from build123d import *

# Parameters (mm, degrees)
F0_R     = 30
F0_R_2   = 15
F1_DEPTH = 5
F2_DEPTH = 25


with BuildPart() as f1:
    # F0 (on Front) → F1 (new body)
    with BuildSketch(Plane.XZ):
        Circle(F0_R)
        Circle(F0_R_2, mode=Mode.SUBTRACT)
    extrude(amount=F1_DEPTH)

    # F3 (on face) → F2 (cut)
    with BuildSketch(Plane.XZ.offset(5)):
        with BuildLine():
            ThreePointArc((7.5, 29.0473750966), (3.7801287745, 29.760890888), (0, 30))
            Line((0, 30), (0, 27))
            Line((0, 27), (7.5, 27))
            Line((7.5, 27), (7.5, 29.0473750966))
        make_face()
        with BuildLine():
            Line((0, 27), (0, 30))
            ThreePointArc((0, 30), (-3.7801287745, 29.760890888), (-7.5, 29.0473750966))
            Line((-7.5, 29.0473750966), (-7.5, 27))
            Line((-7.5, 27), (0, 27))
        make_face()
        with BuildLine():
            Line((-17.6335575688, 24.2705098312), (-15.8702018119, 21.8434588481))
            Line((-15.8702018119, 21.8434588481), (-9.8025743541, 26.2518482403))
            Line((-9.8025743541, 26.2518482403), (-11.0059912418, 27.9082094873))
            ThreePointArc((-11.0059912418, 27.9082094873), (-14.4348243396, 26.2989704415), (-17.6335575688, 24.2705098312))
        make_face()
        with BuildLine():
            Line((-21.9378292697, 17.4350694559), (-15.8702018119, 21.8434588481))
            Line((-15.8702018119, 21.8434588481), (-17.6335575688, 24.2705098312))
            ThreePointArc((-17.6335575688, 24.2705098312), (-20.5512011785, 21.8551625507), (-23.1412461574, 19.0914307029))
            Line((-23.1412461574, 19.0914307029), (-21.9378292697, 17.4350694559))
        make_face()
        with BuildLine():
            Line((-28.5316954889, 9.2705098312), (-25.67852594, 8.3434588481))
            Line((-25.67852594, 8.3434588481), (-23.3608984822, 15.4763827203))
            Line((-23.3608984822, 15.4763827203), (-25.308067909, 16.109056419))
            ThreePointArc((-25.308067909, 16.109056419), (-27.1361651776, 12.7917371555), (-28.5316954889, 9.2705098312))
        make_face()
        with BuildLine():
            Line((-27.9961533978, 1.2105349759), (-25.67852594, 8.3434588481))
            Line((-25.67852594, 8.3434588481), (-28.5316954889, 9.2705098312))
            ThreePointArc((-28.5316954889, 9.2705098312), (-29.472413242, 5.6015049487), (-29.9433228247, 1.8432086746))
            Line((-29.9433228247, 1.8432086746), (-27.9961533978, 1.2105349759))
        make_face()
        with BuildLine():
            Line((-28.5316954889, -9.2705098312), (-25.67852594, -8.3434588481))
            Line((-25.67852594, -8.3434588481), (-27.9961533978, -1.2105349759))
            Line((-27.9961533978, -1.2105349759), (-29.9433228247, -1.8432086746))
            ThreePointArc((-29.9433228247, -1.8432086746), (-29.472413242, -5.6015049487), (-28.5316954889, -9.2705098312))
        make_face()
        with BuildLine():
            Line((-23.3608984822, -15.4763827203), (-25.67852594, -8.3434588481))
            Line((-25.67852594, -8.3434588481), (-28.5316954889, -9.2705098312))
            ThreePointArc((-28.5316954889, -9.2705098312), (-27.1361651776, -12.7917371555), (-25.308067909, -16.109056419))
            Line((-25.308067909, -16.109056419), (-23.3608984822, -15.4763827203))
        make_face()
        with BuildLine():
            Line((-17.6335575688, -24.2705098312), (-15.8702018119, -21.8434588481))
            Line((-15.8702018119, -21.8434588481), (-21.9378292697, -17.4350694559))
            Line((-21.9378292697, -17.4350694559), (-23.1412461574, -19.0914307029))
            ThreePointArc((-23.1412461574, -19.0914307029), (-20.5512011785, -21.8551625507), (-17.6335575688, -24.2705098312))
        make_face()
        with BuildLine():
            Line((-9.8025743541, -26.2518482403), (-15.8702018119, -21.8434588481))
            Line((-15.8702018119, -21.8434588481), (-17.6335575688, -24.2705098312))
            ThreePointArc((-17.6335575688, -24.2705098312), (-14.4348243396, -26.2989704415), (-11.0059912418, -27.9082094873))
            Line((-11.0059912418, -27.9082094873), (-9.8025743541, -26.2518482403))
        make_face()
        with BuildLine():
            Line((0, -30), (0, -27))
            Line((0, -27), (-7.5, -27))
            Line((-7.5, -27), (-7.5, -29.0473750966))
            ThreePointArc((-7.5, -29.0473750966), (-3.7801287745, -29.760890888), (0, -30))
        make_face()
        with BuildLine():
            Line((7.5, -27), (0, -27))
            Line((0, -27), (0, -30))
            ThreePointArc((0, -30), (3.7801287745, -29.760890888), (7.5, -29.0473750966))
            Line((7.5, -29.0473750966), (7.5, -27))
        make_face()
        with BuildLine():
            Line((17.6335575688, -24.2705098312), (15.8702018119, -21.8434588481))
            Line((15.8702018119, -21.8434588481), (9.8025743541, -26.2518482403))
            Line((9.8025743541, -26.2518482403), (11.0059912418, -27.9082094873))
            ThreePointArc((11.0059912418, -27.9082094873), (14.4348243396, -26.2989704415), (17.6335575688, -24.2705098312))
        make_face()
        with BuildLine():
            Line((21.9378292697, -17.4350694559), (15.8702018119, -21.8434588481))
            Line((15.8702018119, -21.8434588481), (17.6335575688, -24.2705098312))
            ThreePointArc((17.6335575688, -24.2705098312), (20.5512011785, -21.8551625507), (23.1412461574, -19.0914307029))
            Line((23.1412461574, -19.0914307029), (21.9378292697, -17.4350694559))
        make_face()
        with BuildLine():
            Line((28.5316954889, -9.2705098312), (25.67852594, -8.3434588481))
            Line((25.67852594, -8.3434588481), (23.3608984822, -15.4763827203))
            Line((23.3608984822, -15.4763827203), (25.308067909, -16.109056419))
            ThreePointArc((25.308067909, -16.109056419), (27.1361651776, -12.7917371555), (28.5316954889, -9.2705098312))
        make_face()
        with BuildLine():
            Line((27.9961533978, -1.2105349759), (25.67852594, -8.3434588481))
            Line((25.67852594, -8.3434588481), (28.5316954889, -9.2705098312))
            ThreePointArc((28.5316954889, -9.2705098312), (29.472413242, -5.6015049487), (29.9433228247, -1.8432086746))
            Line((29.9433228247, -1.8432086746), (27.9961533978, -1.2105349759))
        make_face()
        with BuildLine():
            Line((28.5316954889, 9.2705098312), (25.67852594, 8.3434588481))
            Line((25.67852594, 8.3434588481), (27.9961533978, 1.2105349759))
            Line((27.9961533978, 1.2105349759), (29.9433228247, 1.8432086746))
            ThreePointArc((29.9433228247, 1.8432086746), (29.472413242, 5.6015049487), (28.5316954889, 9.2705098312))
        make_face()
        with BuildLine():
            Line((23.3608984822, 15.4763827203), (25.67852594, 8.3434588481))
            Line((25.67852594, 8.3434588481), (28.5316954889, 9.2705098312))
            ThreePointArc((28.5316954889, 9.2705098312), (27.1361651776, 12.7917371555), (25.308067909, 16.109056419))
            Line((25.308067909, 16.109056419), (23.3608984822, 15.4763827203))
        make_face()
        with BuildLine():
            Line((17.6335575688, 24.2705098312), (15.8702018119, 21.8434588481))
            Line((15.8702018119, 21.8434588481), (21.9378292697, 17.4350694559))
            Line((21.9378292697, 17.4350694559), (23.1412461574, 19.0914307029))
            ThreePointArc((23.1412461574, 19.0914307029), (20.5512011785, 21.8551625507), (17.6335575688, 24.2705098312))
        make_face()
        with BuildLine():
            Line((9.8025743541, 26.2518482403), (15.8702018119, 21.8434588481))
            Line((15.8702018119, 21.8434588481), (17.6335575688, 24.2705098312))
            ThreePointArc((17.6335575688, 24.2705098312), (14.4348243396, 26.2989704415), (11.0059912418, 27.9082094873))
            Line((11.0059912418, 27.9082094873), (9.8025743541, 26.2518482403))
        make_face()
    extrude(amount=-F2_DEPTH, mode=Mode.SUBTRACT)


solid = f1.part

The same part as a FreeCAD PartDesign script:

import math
import FreeCAD as App
import Part
import Sketcher
from FreeCAD import Vector
Q = App.Units.Quantity

doc = App.newDocument("Part")
params = doc.addObject("Spreadsheet::Sheet", "Params")
for row, (alias, value) in enumerate([
    ("sketch1_diameter", "60 mm"),
    ("sketch1_diameter2", "30 mm"),
    ("pad1_length", "5 mm"),
    ("sketch2_radius", "30 mm"),
    ("sketch2_width", "15 mm"),
    ("sketch2_length", "15 mm"),
    ("pocket1_length", "25 mm"),
], start=1):
    params.set(f"A{row}", alias)
    params.set(f"B{row}", "=" + value)
    params.setAlias(f"B{row}", alias)

body = doc.addObject("PartDesign::Body", "Body")

sketch1 = body.newObject("Sketcher::SketchObject", "Sketch")
sketch1.AttachmentSupport = (doc.getObject("XZ_Plane"), [""])
sketch1.MapMode = "FlatFace"
sketch1.addGeometry(Part.Circle(Vector(0, 0, 0), Vector(0, 0, 1), 30), False)
sketch1.addGeometry(Part.Circle(Vector(0, 0, 0), Vector(0, 0, 1), 15), False)
sketch1.addConstraint(Sketcher.Constraint("Coincident", 0, 3, -1, 1))
sketch1.addConstraint(Sketcher.Constraint("Coincident", 1, 3, -1, 1))
sketch1.addConstraint(Sketcher.Constraint("Diameter", 0, 60.0))
sketch1.addConstraint(Sketcher.Constraint("Diameter", 1, 30.0))
sketch1.setExpression("Constraints[2]", "Params.sketch1_diameter")
sketch1.setExpression("Constraints[3]", "Params.sketch1_diameter2")
pad1 = body.newObject("PartDesign::Pad", "Pad")
pad1.Profile = sketch1
pad1.setExpression("Length", "Params.pad1_length")

sketch2 = body.newObject("Sketcher::SketchObject", "Sketch001")
sketch2.AttachmentSupport = (doc.getObject("XZ_Plane"), [""])
sketch2.MapMode = "FlatFace"
sketch2.AttachmentOffset = App.Placement(Vector(0, 0, 5), App.Rotation())
sketch2.addGeometry(Part.ArcOfCircle(Part.Circle(Vector(0, 0, 0), Vector(0, 0, 1), 30), math.radians(75.52), math.radians(90)), False)
sketch2.addGeometry(Part.ArcOfCircle(Part.Circle(Vector(0, 0, 0), Vector(0, 0, 1), 30), math.radians(90), math.radians(104.48)), False)
sketch2.addGeometry(Part.LineSegment(Vector(-7.5, 29, 0), Vector(-7.5, 27, 0)), False)
sketch2.addGeometry(Part.LineSegment(Vector(-7.5, 27, 0), Vector(7.5, 27, 0)), False)
sketch2.addGeometry(Part.LineSegment(Vector(7.5, 27, 0), Vector(7.5, 29, 0)), False)
sketch2.addGeometry(Part.LineSegment(Vector(-9.8, 26.3, 0), Vector(-11, 27.9, 0)), False)
sketch2.addGeometry(Part.ArcOfCircle(Part.Circle(Vector(0, 0, 0), Vector(0, 0, 1), 30), math.radians(111.52), math.radians(126)), False)
sketch2.addGeometry(Part.ArcOfCircle(Part.Circle(Vector(0, 0, 0), Vector(0, 0, 1), 30), math.radians(126), math.radians(140.48)), False)
sketch2.addGeometry(Part.LineSegment(Vector(-23.1, 19.1, 0), Vector(-21.9, 17.4, 0)), False)
sketch2.addGeometry(Part.LineSegment(Vector(-21.9, 17.4, 0), Vector(-9.8, 26.3, 0)), False)
sketch2.addGeometry(Part.LineSegment(Vector(-23.4, 15.5, 0), Vector(-25.3, 16.1, 0)), False)
sketch2.addGeometry(Part.ArcOfCircle(Part.Circle(Vector(0, 0, 0), Vector(0, 0, 1), 30), math.radians(147.52), math.radians(162)), False)
sketch2.addGeometry(Part.ArcOfCircle(Part.Circle(Vector(0, 0, 0), Vector(0, 0, 1), 30), math.radians(162), math.radians(176.48)), False)
sketch2.addGeometry(Part.LineSegment(Vector(-29.9, 1.8, 0), Vector(-28, 1.2, 0)), False)
sketch2.addGeometry(Part.LineSegment(Vector(-28, 1.2, 0), Vector(-23.4, 15.5, 0)), False)
sketch2.addGeometry(Part.LineSegment(Vector(-28, -1.2, 0), Vector(-29.9, -1.8, 0)), False)
sketch2.addGeometry(Part.ArcOfCircle(Part.Circle(Vector(0, 0, 0), Vector(0, 0, 1), 30), math.radians(-176.48), math.radians(-162)), False)
sketch2.addGeometry(Part.ArcOfCircle(Part.Circle(Vector(0, 0, 0), Vector(0, 0, 1), 30), math.radians(-162), math.radians(-147.52)), False)
sketch2.addGeometry(Part.LineSegment(Vector(-25.3, -16.1, 0), Vector(-23.4, -15.5, 0)), False)
sketch2.addGeometry(Part.LineSegment(Vector(-23.4, -15.5, 0), Vector(-28, -1.2, 0)), False)
sketch2.addGeometry(Part.LineSegment(Vector(-21.9, -17.4, 0), Vector(-23.1, -19.1, 0)), False)
sketch2.addGeometry(Part.ArcOfCircle(Part.Circle(Vector(0, 0, 0), Vector(0, 0, 1), 30), math.radians(-140.48), math.radians(-126)), False)
sketch2.addGeometry(Part.ArcOfCircle(Part.Circle(Vector(0, 0, 0), Vector(0, 0, 1), 30), math.radians(-126), math.radians(-111.52)), False)
sketch2.addGeometry(Part.LineSegment(Vector(-11, -27.9, 0), Vector(-9.8, -26.3, 0)), False)
sketch2.addGeometry(Part.LineSegment(Vector(-9.8, -26.3, 0), Vector(-21.9, -17.4, 0)), False)
sketch2.addGeometry(Part.LineSegment(Vector(-7.5, -27, 0), Vector(-7.5, -29, 0)), False)
sketch2.addGeometry(Part.ArcOfCircle(Part.Circle(Vector(0, 0, 0), Vector(0, 0, 1), 30), math.radians(-104.48), math.radians(-90)), False)
sketch2.addGeometry(Part.ArcOfCircle(Part.Circle(Vector(0, 0, 0), Vector(0, 0, 1), 30), math.radians(-90), math.radians(-75.52)), False)
sketch2.addGeometry(Part.LineSegment(Vector(7.5, -29, 0), Vector(7.5, -27, 0)), False)
sketch2.addGeometry(Part.LineSegment(Vector(7.5, -27, 0), Vector(-7.5, -27, 0)), False)
sketch2.addGeometry(Part.LineSegment(Vector(9.8, -26.3, 0), Vector(11, -27.9, 0)), False)
sketch2.addGeometry(Part.ArcOfCircle(Part.Circle(Vector(0, 0, 0), Vector(0, 0, 1), 30), math.radians(-68.48), math.radians(-54)), False)
sketch2.addGeometry(Part.ArcOfCircle(Part.Circle(Vector(0, 0, 0), Vector(0, 0, 1), 30), math.radians(-54), math.radians(-39.52)), False)
sketch2.addGeometry(Part.LineSegment(Vector(23.1, -19.1, 0), Vector(21.9, -17.4, 0)), False)
sketch2.addGeometry(Part.LineSegment(Vector(21.9, -17.4, 0), Vector(9.8, -26.3, 0)), False)
sketch2.addGeometry(Part.LineSegment(Vector(23.4, -15.5, 0), Vector(25.3, -16.1, 0)), False)
sketch2.addGeometry(Part.ArcOfCircle(Part.Circle(Vector(0, 0, 0), Vector(0, 0, 1), 30), math.radians(-32.48), math.radians(-18)), False)
sketch2.addGeometry(Part.ArcOfCircle(Part.Circle(Vector(0, 0, 0), Vector(0, 0, 1), 30), math.radians(-18), math.radians(-3.52)), False)
sketch2.addGeometry(Part.LineSegment(Vector(29.9, -1.8, 0), Vector(28, -1.2, 0)), False)
sketch2.addGeometry(Part.LineSegment(Vector(28, -1.2, 0), Vector(23.4, -15.5, 0)), False)
sketch2.addGeometry(Part.LineSegment(Vector(28, 1.2, 0), Vector(29.9, 1.8, 0)), False)
sketch2.addGeometry(Part.ArcOfCircle(Part.Circle(Vector(0, 0, 0), Vector(0, 0, 1), 30), math.radians(3.52), math.radians(18)), False)
sketch2.addGeometry(Part.ArcOfCircle(Part.Circle(Vector(0, 0, 0), Vector(0, 0, 1), 30), math.radians(18), math.radians(32.48)), False)
sketch2.addGeometry(Part.LineSegment(Vector(25.3, 16.1, 0), Vector(23.4, 15.5, 0)), False)
sketch2.addGeometry(Part.LineSegment(Vector(23.4, 15.5, 0), Vector(28, 1.2, 0)), False)
sketch2.addGeometry(Part.LineSegment(Vector(21.9, 17.4, 0), Vector(23.1, 19.1, 0)), False)
sketch2.addGeometry(Part.ArcOfCircle(Part.Circle(Vector(0, 0, 0), Vector(0, 0, 1), 30), math.radians(39.52), math.radians(54)), False)
sketch2.addGeometry(Part.ArcOfCircle(Part.Circle(Vector(0, 0, 0), Vector(0, 0, 1), 30), math.radians(54), math.radians(68.48)), False)
sketch2.addGeometry(Part.LineSegment(Vector(11, 27.9, 0), Vector(9.8, 26.3, 0)), False)
sketch2.addGeometry(Part.LineSegment(Vector(9.8, 26.3, 0), Vector(21.9, 17.4, 0)), False)
sketch2.addConstraint(Sketcher.Constraint("Tangent", 0, 2, 1, 1))
sketch2.addConstraint(Sketcher.Constraint("Coincident", 1, 2, 2, 1))
sketch2.addConstraint(Sketcher.Constraint("Coincident", 2, 2, 3, 1))
sketch2.addConstraint(Sketcher.Constraint("Coincident", 3, 2, 4, 1))
sketch2.addConstraint(Sketcher.Constraint("Coincident", 4, 2, 0, 1))
sketch2.addConstraint(Sketcher.Constraint("Coincident", 5, 2, 6, 1))
sketch2.addConstraint(Sketcher.Constraint("Tangent", 6, 2, 7, 1))
sketch2.addConstraint(Sketcher.Constraint("Coincident", 7, 2, 8, 1))
sketch2.addConstraint(Sketcher.Constraint("Coincident", 8, 2, 9, 1))
sketch2.addConstraint(Sketcher.Constraint("Coincident", 9, 2, 5, 1))
sketch2.addConstraint(Sketcher.Constraint("Coincident", 10, 2, 11, 1))
sketch2.addConstraint(Sketcher.Constraint("Tangent", 11, 2, 12, 1))
sketch2.addConstraint(Sketcher.Constraint("Coincident", 12, 2, 13, 1))
sketch2.addConstraint(Sketcher.Constraint("Coincident", 13, 2, 14, 1))
sketch2.addConstraint(Sketcher.Constraint("Coincident", 14, 2, 10, 1))
sketch2.addConstraint(Sketcher.Constraint("Coincident", 15, 2, 16, 1))
sketch2.addConstraint(Sketcher.Constraint("Tangent", 16, 2, 17, 1))
sketch2.addConstraint(Sketcher.Constraint("Coincident", 17, 2, 18, 1))
sketch2.addConstraint(Sketcher.Constraint("Coincident", 18, 2, 19, 1))
sketch2.addConstraint(Sketcher.Constraint("Coincident", 19, 2, 15, 1))
sketch2.addConstraint(Sketcher.Constraint("Coincident", 20, 2, 21, 1))
sketch2.addConstraint(Sketcher.Constraint("Tangent", 21, 2, 22, 1))
sketch2.addConstraint(Sketcher.Constraint("Coincident", 22, 2, 23, 1))
sketch2.addConstraint(Sketcher.Constraint("Coincident", 23, 2, 24, 1))
sketch2.addConstraint(Sketcher.Constraint("Coincident", 24, 2, 20, 1))
sketch2.addConstraint(Sketcher.Constraint("Coincident", 25, 2, 26, 1))
sketch2.addConstraint(Sketcher.Constraint("Tangent", 26, 2, 27, 1))
sketch2.addConstraint(Sketcher.Constraint("Coincident", 27, 2, 28, 1))
sketch2.addConstraint(Sketcher.Constraint("Coincident", 28, 2, 29, 1))
sketch2.addConstraint(Sketcher.Constraint("Coincident", 29, 2, 25, 1))
sketch2.addConstraint(Sketcher.Constraint("Coincident", 30, 2, 31, 1))
sketch2.addConstraint(Sketcher.Constraint("Tangent", 31, 2, 32, 1))
sketch2.addConstraint(Sketcher.Constraint("Coincident", 32, 2, 33, 1))
sketch2.addConstraint(Sketcher.Constraint("Coincident", 33, 2, 34, 1))
sketch2.addConstraint(Sketcher.Constraint("Coincident", 34, 2, 30, 1))
sketch2.addConstraint(Sketcher.Constraint("Coincident", 35, 2, 36, 1))
sketch2.addConstraint(Sketcher.Constraint("Tangent", 36, 2, 37, 1))
sketch2.addConstraint(Sketcher.Constraint("Coincident", 37, 2, 38, 1))
sketch2.addConstraint(Sketcher.Constraint("Coincident", 38, 2, 39, 1))
sketch2.addConstraint(Sketcher.Constraint("Coincident", 39, 2, 35, 1))
sketch2.addConstraint(Sketcher.Constraint("Coincident", 40, 2, 41, 1))
sketch2.addConstraint(Sketcher.Constraint("Tangent", 41, 2, 42, 1))
sketch2.addConstraint(Sketcher.Constraint("Coincident", 42, 2, 43, 1))
sketch2.addConstraint(Sketcher.Constraint("Coincident", 43, 2, 44, 1))
sketch2.addConstraint(Sketcher.Constraint("Coincident", 44, 2, 40, 1))
sketch2.addConstraint(Sketcher.Constraint("Coincident", 45, 2, 46, 1))
sketch2.addConstraint(Sketcher.Constraint("Tangent", 46, 2, 47, 1))
sketch2.addConstraint(Sketcher.Constraint("Coincident", 47, 2, 48, 1))
sketch2.addConstraint(Sketcher.Constraint("Coincident", 48, 2, 49, 1))
sketch2.addConstraint(Sketcher.Constraint("Coincident", 49, 2, 45, 1))
sketch2.addConstraint(Sketcher.Constraint("Vertical", 2))
sketch2.addConstraint(Sketcher.Constraint("Horizontal", 3))
sketch2.addConstraint(Sketcher.Constraint("Vertical", 4))
sketch2.addConstraint(Sketcher.Constraint("Vertical", 25))
sketch2.addConstraint(Sketcher.Constraint("Vertical", 28))
sketch2.addConstraint(Sketcher.Constraint("Horizontal", 29))
sketch2.addConstraint(Sketcher.Constraint("Coincident", 0, 3, -1, 1))
sketch2.addConstraint(Sketcher.Constraint("Coincident", 6, 3, -1, 1))
sketch2.addConstraint(Sketcher.Constraint("Coincident", 11, 3, -1, 1))
sketch2.addConstraint(Sketcher.Constraint("Coincident", 16, 3, -1, 1))
sketch2.addConstraint(Sketcher.Constraint("Coincident", 21, 3, -1, 1))
sketch2.addConstraint(Sketcher.Constraint("Coincident", 26, 3, -1, 1))
sketch2.addConstraint(Sketcher.Constraint("Coincident", 31, 3, -1, 1))
sketch2.addConstraint(Sketcher.Constraint("Coincident", 36, 3, -1, 1))
sketch2.addConstraint(Sketcher.Constraint("Coincident", 41, 3, -1, 1))
sketch2.addConstraint(Sketcher.Constraint("Coincident", 46, 3, -1, 1))
sketch2.addConstraint(Sketcher.Constraint("Equal", 0, 1))
sketch2.addConstraint(Sketcher.Constraint("Equal", 1, 6))
sketch2.addConstraint(Sketcher.Constraint("Equal", 6, 7))
sketch2.addConstraint(Sketcher.Constraint("Equal", 7, 11))
sketch2.addConstraint(Sketcher.Constraint("Equal", 11, 12))
sketch2.addConstraint(Sketcher.Constraint("Equal", 12, 16))
sketch2.addConstraint(Sketcher.Constraint("Equal", 16, 17))
sketch2.addConstraint(Sketcher.Constraint("Equal", 17, 21))
sketch2.addConstraint(Sketcher.Constraint("Equal", 21, 22))
sketch2.addConstraint(Sketcher.Constraint("Equal", 22, 26))
sketch2.addConstraint(Sketcher.Constraint("Equal", 26, 27))
sketch2.addConstraint(Sketcher.Constraint("Equal", 27, 31))
sketch2.addConstraint(Sketcher.Constraint("Equal", 31, 32))
sketch2.addConstraint(Sketcher.Constraint("Equal", 32, 36))
sketch2.addConstraint(Sketcher.Constraint("Equal", 36, 37))
sketch2.addConstraint(Sketcher.Constraint("Equal", 37, 41))
sketch2.addConstraint(Sketcher.Constraint("Equal", 41, 42))
sketch2.addConstraint(Sketcher.Constraint("Equal", 42, 46))
sketch2.addConstraint(Sketcher.Constraint("Equal", 46, 47))
sketch2.addConstraint(Sketcher.Constraint("Symmetric", 2, 2, 28, 2, -1, 1))
sketch2.addConstraint(Sketcher.Constraint("Symmetric", 8, 2, 33, 2, -1, 1))
sketch2.addConstraint(Sketcher.Constraint("Symmetric", 9, 2, 34, 2, -1, 1))
sketch2.addConstraint(Sketcher.Constraint("Symmetric", 13, 2, 38, 2, -1, 1))
sketch2.addConstraint(Sketcher.Constraint("Symmetric", 14, 2, 39, 2, -1, 1))
sketch2.addConstraint(Sketcher.Constraint("Symmetric", 18, 2, 43, 2, -1, 1))
sketch2.addConstraint(Sketcher.Constraint("Symmetric", 19, 2, 44, 2, -1, 1))
sketch2.addConstraint(Sketcher.Constraint("Symmetric", 23, 2, 48, 2, -1, 1))
sketch2.addConstraint(Sketcher.Constraint("Symmetric", 24, 2, 49, 2, -1, 1))
sketch2.addConstraint(Sketcher.Constraint("Symmetric", 24, 2, 33, 2, -2))
sketch2.addConstraint(Sketcher.Constraint("Symmetric", 23, 2, 34, 2, -2))
sketch2.addConstraint(Sketcher.Constraint("Symmetric", 19, 2, 38, 2, -2))
sketch2.addConstraint(Sketcher.Constraint("Symmetric", 18, 2, 39, 2, -2))
sketch2.addConstraint(Sketcher.Constraint("PointOnObject", 0, 2, -2))
sketch2.addConstraint(Sketcher.Constraint("PointOnObject", 26, 2, -2))
sketch2.addConstraint(Sketcher.Constraint("Parallel", 5, 8))
sketch2.addConstraint(Sketcher.Constraint("Perpendicular", 8, 9))
sketch2.addConstraint(Sketcher.Constraint("Parallel", 10, 13))
sketch2.addConstraint(Sketcher.Constraint("Perpendicular", 13, 14))
sketch2.addConstraint(Sketcher.Constraint("Parallel", 15, 18))
sketch2.addConstraint(Sketcher.Constraint("Perpendicular", 18, 19))
sketch2.addConstraint(Sketcher.Constraint("Parallel", 20, 23))
sketch2.addConstraint(Sketcher.Constraint("Perpendicular", 23, 24))
sketch2.addConstraint(Sketcher.Constraint("Perpendicular", 9, 30))
sketch2.addConstraint(Sketcher.Constraint("Parallel", 30, 33))
sketch2.addConstraint(Sketcher.Constraint("Perpendicular", 14, 35))
sketch2.addConstraint(Sketcher.Constraint("Parallel", 35, 38))
sketch2.addConstraint(Sketcher.Constraint("Perpendicular", 19, 40))
sketch2.addConstraint(Sketcher.Constraint("Parallel", 40, 43))
sketch2.addConstraint(Sketcher.Constraint("Perpendicular", 24, 45))
sketch2.addConstraint(Sketcher.Constraint("Parallel", 45, 48))
sketch2.addConstraint(Sketcher.Constraint("Horizontal", 1, 2, 4, 2))
sketch2.addConstraint(Sketcher.Constraint("Horizontal", 25, 2, 27, 2))
sketch2.addConstraint(Sketcher.Constraint("Horizontal", 21, 2, 31, 2))
sketch2.addConstraint(Sketcher.Constraint("Horizontal", 16, 2, 36, 2))
sketch2.addConstraint(Sketcher.Constraint("Horizontal", 11, 2, 41, 2))
sketch2.addConstraint(Sketcher.Constraint("Horizontal", 6, 2, 46, 2))
sketch2.addConstraint(Sketcher.Constraint("Vertical", 11, 2, 16, 2))
sketch2.addConstraint(Sketcher.Constraint("Vertical", 6, 2, 21, 2))
sketch2.addConstraint(Sketcher.Constraint("Equal", 5, 8))
sketch2.addConstraint(Sketcher.Constraint("Equal", 8, 10))
sketch2.addConstraint(Sketcher.Constraint("Equal", 10, 13))
sketch2.addConstraint(Sketcher.Constraint("Equal", 9, 14))
sketch2.addConstraint(Sketcher.Constraint("Radius", 0, 30.0))
sketch2.addConstraint(Sketcher.Constraint("DistanceX", 3, 1, 3, 2, 15.0))
sketch2.addConstraint(Sketcher.Constraint("Angle", 5, Q("126 deg")))
sketch2.addConstraint(Sketcher.Constraint("Angle", 10, Q("162 deg")))
sketch2.addConstraint(Sketcher.Constraint("Distance", 9, 15.0))
sketch2.addConstraint(Sketcher.Constraint("DistanceY", -1, 1, 2, 2, 27.0))
sketch2.addConstraint(Sketcher.Constraint("DistanceX", 14, 2, -1, 1, 23.360898))
sketch2.addConstraint(Sketcher.Constraint("DistanceY", -1, 1, 6, 2, 24.27051))
sketch2.addConstraint(Sketcher.Constraint("DistanceY", -1, 1, 11, 2, 9.27051))
sketch2.setExpression("Constraints[128]", "Params.sketch2_radius")
sketch2.setExpression("Constraints[129]", "Params.sketch2_width")
sketch2.setExpression("Constraints[132]", "Params.sketch2_length")
pocket1 = body.newObject("PartDesign::Pocket", "Pocket")
pocket1.Profile = sketch2
pocket1.setExpression("Length", "Params.pocket1_length")

doc.recompute()
